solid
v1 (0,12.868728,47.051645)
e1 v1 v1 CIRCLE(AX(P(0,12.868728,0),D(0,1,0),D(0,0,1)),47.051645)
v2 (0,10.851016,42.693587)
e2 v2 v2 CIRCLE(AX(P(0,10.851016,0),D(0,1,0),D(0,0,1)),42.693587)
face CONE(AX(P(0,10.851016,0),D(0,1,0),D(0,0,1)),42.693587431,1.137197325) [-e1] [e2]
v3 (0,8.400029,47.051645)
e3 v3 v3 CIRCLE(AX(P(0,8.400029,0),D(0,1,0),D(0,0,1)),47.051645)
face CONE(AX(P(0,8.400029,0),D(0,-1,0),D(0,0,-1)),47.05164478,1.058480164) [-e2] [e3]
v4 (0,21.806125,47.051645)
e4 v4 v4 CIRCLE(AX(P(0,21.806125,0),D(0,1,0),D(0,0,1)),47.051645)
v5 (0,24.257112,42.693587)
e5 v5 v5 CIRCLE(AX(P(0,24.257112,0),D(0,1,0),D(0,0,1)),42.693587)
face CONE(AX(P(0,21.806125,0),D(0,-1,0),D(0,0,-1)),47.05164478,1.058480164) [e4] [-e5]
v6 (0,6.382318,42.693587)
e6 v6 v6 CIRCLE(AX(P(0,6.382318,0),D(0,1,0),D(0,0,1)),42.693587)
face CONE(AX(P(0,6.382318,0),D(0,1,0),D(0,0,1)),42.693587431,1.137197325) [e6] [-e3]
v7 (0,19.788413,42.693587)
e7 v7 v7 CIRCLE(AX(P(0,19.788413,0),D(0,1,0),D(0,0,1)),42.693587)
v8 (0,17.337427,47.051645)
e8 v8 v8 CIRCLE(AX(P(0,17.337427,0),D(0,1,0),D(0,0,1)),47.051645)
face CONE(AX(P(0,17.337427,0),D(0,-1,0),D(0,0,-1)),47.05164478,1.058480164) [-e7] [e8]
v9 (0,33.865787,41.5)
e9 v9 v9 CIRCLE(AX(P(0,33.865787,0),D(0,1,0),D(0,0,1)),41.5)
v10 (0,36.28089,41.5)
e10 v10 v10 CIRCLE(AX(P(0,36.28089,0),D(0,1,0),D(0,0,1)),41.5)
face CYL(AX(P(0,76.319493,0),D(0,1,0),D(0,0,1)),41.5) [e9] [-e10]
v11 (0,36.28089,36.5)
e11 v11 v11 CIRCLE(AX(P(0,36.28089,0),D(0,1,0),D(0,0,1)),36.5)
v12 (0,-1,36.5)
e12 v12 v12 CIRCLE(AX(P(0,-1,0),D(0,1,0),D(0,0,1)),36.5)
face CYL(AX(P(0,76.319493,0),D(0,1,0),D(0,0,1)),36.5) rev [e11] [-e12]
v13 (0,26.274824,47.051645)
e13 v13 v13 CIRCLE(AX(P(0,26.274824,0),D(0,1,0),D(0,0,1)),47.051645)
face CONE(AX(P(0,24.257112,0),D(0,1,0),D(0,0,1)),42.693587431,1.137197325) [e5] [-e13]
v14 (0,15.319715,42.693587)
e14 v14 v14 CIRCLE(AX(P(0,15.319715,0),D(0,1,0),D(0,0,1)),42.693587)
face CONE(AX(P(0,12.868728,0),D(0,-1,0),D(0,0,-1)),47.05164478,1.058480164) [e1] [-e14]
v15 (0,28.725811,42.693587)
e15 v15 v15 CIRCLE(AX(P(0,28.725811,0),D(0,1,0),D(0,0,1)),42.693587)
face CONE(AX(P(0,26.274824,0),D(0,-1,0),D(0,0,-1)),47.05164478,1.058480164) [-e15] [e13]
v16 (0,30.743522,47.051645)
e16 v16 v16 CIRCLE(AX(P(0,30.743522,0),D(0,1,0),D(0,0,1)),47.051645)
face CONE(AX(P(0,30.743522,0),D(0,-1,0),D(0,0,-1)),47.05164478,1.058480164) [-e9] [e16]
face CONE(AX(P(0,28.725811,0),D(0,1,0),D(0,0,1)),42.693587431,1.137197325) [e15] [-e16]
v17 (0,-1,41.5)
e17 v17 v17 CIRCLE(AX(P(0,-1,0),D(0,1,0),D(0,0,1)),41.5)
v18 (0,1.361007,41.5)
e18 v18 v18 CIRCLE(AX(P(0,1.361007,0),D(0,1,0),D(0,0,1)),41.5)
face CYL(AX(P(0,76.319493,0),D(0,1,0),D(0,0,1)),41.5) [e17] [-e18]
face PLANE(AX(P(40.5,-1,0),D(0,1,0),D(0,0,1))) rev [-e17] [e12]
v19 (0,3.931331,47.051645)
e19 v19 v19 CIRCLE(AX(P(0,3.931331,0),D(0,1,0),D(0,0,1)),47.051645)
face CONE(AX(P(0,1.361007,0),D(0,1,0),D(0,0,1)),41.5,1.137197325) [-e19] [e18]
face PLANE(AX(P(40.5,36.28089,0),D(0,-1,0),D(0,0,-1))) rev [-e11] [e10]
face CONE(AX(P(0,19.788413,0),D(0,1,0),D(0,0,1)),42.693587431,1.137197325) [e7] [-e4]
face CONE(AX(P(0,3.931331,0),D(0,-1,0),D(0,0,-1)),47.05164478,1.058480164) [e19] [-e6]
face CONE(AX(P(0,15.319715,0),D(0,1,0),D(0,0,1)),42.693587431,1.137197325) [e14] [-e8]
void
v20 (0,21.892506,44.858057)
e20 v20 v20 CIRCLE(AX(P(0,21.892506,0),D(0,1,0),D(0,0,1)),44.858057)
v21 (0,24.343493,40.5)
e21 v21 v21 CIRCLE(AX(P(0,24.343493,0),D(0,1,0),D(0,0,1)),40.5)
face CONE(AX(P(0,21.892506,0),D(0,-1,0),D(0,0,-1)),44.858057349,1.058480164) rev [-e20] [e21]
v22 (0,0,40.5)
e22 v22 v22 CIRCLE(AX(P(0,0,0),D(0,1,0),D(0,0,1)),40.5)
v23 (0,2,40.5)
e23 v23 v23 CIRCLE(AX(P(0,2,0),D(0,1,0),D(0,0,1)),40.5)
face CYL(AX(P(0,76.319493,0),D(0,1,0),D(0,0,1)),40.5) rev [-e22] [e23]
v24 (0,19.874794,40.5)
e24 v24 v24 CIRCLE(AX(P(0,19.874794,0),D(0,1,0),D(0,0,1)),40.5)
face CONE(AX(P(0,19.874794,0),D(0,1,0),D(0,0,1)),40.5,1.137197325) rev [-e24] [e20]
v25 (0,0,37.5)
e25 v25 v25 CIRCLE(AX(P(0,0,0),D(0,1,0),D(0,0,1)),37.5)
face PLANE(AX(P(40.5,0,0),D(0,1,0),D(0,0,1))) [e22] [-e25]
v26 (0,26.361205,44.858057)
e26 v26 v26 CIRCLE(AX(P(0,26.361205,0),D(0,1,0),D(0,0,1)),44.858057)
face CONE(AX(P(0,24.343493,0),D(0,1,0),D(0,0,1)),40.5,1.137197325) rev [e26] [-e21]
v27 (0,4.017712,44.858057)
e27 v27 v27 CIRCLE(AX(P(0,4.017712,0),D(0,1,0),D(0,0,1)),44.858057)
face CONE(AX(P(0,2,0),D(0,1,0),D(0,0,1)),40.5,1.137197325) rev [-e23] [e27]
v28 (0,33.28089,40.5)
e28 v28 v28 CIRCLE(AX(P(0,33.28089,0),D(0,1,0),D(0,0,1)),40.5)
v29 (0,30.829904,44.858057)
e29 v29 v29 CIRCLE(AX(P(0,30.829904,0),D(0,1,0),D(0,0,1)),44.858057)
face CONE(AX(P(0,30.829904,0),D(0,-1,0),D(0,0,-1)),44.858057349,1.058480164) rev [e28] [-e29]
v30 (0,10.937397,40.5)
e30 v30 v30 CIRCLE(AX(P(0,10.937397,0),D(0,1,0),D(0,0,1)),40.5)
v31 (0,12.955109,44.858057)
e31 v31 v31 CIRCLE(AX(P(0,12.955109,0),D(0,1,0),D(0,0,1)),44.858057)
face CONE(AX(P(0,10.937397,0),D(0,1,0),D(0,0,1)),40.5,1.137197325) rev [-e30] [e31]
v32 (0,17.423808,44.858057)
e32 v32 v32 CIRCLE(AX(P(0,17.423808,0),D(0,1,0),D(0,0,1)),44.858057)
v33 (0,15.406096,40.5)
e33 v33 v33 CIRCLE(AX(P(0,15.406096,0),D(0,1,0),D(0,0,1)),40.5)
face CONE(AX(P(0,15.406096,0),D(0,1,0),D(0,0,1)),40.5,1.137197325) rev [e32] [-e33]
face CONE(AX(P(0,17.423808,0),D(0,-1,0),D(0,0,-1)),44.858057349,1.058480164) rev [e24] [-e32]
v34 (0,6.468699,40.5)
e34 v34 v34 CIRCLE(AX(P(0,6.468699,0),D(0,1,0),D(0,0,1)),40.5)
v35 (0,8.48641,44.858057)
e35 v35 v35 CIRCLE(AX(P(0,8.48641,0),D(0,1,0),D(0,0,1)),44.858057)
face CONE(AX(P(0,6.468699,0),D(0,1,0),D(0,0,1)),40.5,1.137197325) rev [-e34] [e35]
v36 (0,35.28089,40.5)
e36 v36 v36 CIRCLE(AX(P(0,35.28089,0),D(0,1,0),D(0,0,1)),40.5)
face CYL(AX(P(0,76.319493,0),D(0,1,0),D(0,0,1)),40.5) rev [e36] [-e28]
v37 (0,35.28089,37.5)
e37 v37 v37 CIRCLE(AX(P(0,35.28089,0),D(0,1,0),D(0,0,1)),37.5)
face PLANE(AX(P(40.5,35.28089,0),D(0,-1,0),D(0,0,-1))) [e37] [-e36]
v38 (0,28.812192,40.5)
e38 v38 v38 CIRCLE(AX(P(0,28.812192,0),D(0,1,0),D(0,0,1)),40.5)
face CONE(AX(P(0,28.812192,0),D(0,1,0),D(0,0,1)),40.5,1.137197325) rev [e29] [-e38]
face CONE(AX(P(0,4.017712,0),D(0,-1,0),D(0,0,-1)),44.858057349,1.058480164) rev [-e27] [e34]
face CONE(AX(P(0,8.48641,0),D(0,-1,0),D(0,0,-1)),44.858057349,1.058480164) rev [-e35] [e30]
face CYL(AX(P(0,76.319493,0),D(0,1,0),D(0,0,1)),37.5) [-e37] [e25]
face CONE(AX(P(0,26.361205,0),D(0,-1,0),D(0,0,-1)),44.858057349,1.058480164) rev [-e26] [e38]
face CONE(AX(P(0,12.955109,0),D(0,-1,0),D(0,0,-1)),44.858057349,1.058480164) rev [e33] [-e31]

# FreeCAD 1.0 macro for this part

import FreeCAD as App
import Part
import Sketcher

V = App.Vector
Q = App.Units.Quantity


def add_polygon(sketch, points):
    """Adds a closed chain of lines whose ends are joined by coincident constraints."""
    first, n = sketch.GeometryCount, len(points)
    for a, b in zip(points, points[1:] + points[:1]):
        sketch.addGeometry(Part.LineSegment(App.Vector(*a, 0), App.Vector(*b, 0)), False)
    for i in range(n):
        sketch.addConstraint(Sketcher.Constraint("Coincident", first + i, 2, first + (i + 1) % n, 1))

doc = App.newDocument("Part")
body = doc.addObject("PartDesign::Body", "Body")

# Sketch on XY plane
sketch1 = doc.addObject("Sketcher::SketchObject", "Sketch")
body.addObject(sketch1)
sketch1.AttachmentSupport = (doc.XY_Plane, [""])
sketch1.MapMode = "FlatFace"
add_polygon(sketch1, [(36.5, -1), (41.5, -1), (41.5, 1.4), (47.1, 3.9), (42.7, 6.4), (47.1, 8.4), (42.7, 10.9), (47.1, 12.9), (42.7, 15.3), (47.1, 17.3), (42.7, 19.8), (47.1, 21.8), (42.7, 24.3), (47.1, 26.3), (42.7, 28.7), (47.1, 30.7), (41.5, 33.9), (41.5, 36.3), (36.5, 36.3)])  # lines 0-18
add_polygon(sketch1, [(40.5, 0), (37.5, 0), (37.5, 35.3), (40.5, 35.3), (40.5, 33.3), (44.9, 30.8), (40.5, 28.8), (44.9, 26.4), (40.5, 24.3), (44.9, 21.9), (40.5, 19.9), (44.9, 17.4), (40.5, 15.4), (44.9, 13), (40.5, 10.9), (44.9, 8.5), (40.5, 6.5), (44.9, 4), (40.5, 2)])  # lines 19-37
sketch1.addConstraint([
    Sketcher.Constraint("Horizontal", 0),
    Sketcher.Constraint("Vertical", 1),
    Sketcher.Constraint("Vertical", 16),
    Sketcher.Constraint("Horizontal", 17),
    Sketcher.Constraint("Vertical", 18),
    Sketcher.Constraint("Horizontal", 19),
    Sketcher.Constraint("Vertical", 20),
    Sketcher.Constraint("Horizontal", 21),
    Sketcher.Constraint("Vertical", 22),
    Sketcher.Constraint("Vertical", 37),
    Sketcher.Constraint("PointOnObject", 19, 2, -1),
    Sketcher.Constraint("Parallel", 2, 4),
    Sketcher.Constraint("Parallel", 3, 5),
    Sketcher.Constraint("Parallel", 4, 6),
    Sketcher.Constraint("Parallel", 5, 7),
    Sketcher.Constraint("Parallel", 6, 8),
    Sketcher.Constraint("Parallel", 7, 9),
    Sketcher.Constraint("Parallel", 8, 10),
    Sketcher.Constraint("Parallel", 9, 11),
    Sketcher.Constraint("Parallel", 10, 12),
    Sketcher.Constraint("Parallel", 11, 13),
    Sketcher.Constraint("Parallel", 12, 14),
    Sketcher.Constraint("Parallel", 13, 15),
    Sketcher.Constraint("Parallel", 15, 23),
    Sketcher.Constraint("Parallel", 14, 24),
    Sketcher.Constraint("Parallel", 23, 25),
    Sketcher.Constraint("Parallel", 24, 26),
    Sketcher.Constraint("Parallel", 25, 27),
    Sketcher.Constraint("Parallel", 26, 28),
    Sketcher.Constraint("Parallel", 27, 29),
    Sketcher.Constraint("Parallel", 28, 30),
    Sketcher.Constraint("Parallel", 29, 31),
    Sketcher.Constraint("Parallel", 30, 32),
    Sketcher.Constraint("Parallel", 31, 33),
    Sketcher.Constraint("Parallel", 32, 34),
    Sketcher.Constraint("Parallel", 33, 35),
    Sketcher.Constraint("Parallel", 34, 36),
    Sketcher.Constraint("Vertical", 2, 2, 4, 2),
    Sketcher.Constraint("Vertical", 3, 2, 5, 2),
    Sketcher.Constraint("Vertical", 4, 2, 6, 2),
    Sketcher.Constraint("Vertical", 5, 2, 7, 2),
    Sketcher.Constraint("Vertical", 6, 2, 8, 2),
    Sketcher.Constraint("Vertical", 7, 2, 9, 2),
    Sketcher.Constraint("Vertical", 8, 2, 10, 2),
    Sketcher.Constraint("Vertical", 9, 2, 11, 2),
    Sketcher.Constraint("Vertical", 10, 2, 12, 2),
    Sketcher.Constraint("Vertical", 11, 2, 13, 2),
    Sketcher.Constraint("Vertical", 12, 2, 14, 2),
    Sketcher.Constraint("Vertical", 1, 2, 15, 2),
    Sketcher.Constraint("Vertical", 22, 2, 24, 2),
    Sketcher.Constraint("Vertical", 23, 2, 25, 2),
    Sketcher.Constraint("Vertical", 24, 2, 26, 2),
    Sketcher.Constraint("Vertical", 25, 2, 27, 2),
    Sketcher.Constraint("Vertical", 26, 2, 28, 2),
    Sketcher.Constraint("Vertical", 27, 2, 29, 2),
    Sketcher.Constraint("Vertical", 28, 2, 30, 2),
    Sketcher.Constraint("Vertical", 29, 2, 31, 2),
    Sketcher.Constraint("Vertical", 30, 2, 32, 2),
    Sketcher.Constraint("Vertical", 31, 2, 33, 2),
    Sketcher.Constraint("Vertical", 32, 2, 34, 2),
    Sketcher.Constraint("Vertical", 33, 2, 35, 2),
    Sketcher.Constraint("Vertical", 34, 2, 36, 2),
    Sketcher.Constraint("Equal", 22, 37),
    Sketcher.Constraint("Equal", 13, 23),
    Sketcher.Constraint("DistanceX", 0, 1, 0, 2, Q("5 mm")),
    Sketcher.Constraint("DistanceX", 19, 2, 19, 1, Q("3 mm")),
    Sketcher.Constraint("DistanceY", 22, 2, 22, 1, Q("2 mm")),
    Sketcher.Constraint("Distance", 3, Q("5 mm")),
    Sketcher.Constraint("DistanceY", 0, 2, -1, 1, Q("1 mm")),
    Sketcher.Constraint("DistanceX", 18, 2, 19, 2, Q("1 mm")),
    Sketcher.Constraint("DistanceY", 20, 2, 17, 2, Q("1 mm")),
    Sketcher.Constraint("DistanceX", -1, 1, 0, 2, Q("41.5 mm")),
    Sketcher.Constraint("DistanceY", 18, 2, 18, 1, Q("37.28089 mm")),
    Sketcher.Constraint("Distance", 4, Q("4.802481 mm")),
    Sketcher.Constraint("DistanceY", 1, 1, 1, 2, Q("2.361007 mm")),
    Sketcher.Constraint("DistanceY", 16, 1, 16, 2, Q("2.415103 mm")),
])
revolution = doc.addObject("PartDesign::Revolution", "Revolution")
body.addObject(revolution)
revolution.Profile = sketch1
revolution.ReferenceAxis = (sketch1, ["V_Axis"])
revolution.Angle = 360

doc.recompute()
